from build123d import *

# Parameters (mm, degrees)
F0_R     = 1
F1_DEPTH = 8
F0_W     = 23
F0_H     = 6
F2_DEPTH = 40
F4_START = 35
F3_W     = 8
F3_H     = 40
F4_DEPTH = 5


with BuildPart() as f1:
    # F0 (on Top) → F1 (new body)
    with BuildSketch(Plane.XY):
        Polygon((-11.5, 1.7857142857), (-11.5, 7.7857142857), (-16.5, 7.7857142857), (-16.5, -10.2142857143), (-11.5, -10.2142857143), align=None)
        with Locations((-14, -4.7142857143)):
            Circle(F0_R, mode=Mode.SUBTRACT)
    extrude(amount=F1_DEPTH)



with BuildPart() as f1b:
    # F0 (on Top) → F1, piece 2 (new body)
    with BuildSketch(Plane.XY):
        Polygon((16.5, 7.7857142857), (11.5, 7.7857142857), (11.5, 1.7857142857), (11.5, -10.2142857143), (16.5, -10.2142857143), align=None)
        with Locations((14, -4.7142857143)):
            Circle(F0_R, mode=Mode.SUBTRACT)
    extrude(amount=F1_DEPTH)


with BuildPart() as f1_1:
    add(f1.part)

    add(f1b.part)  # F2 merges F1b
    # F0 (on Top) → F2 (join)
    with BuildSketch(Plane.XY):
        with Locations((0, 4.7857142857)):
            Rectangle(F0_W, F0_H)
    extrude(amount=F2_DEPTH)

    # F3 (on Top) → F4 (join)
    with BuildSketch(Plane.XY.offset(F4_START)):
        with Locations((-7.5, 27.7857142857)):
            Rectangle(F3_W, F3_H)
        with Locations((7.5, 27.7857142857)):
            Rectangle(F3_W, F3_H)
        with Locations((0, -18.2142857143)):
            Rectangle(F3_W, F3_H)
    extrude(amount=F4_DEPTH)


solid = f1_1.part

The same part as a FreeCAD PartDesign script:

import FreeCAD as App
import Part
import Sketcher


def add_polygon(sketch, points):
    """Adds a closed chain of lines whose ends are joined by coincident constraints."""
    first, n = sketch.GeometryCount, len(points)
    for a, b in zip(points, points[1:] + points[:1]):
        sketch.addGeometry(Part.LineSegment(App.Vector(*a, 0), App.Vector(*b, 0)), False)
    for i in range(n):
        sketch.addConstraint(Sketcher.Constraint("Coincident", first + i, 2, first + (i + 1) % n, 1))

doc = App.newDocument("Part")
body = doc.addObject("PartDesign::Body", "Body")

# Sketch on XY plane
sketch1 = doc.addObject("Sketcher::SketchObject", "Sketch")
body.addObject(sketch1)
sketch1.AttachmentSupport = (doc.XY_Plane, [""])
sketch1.MapMode = "FlatFace"
add_polygon(sketch1, [(-11.5, 7.785714), (-16.5, 7.785714), (-16.5, -10.214286), (-11.5, -10.214286)])  # lines 0-3
sketch1.addGeometry(Part.Circle(App.Vector(-14, -4.714286, 0), App.Vector(0, 0, 1), 1), False)  # 4
sketch1.addConstraint([
    Sketcher.Constraint("Horizontal", 0),
    Sketcher.Constraint("Vertical", 1),
    Sketcher.Constraint("Horizontal", 2),
    Sketcher.Constraint("Vertical", 3),
    Sketcher.Constraint("Diameter", 4, 2.0),
    Sketcher.Constraint("DistanceX", 0, 2, 0, 1, 5.0),
    Sketcher.Constraint("DistanceY", 1, 2, 1, 1, 18.0),
    Sketcher.Constraint("DistanceX", 4, 3, -1, 1, 14.0),
    Sketcher.Constraint("DistanceX", 0, 2, -1, 1, 16.5),
    Sketcher.Constraint("DistanceY", 4, 3, 0, 2, 12.5),
    Sketcher.Constraint("DistanceY", 4, 3, -1, 1, 4.714286),
])
pad1 = doc.addObject("PartDesign::Pad", "Pad")
body.addObject(pad1)
pad1.Profile = sketch1
pad1.Length = 8
body2 = doc.addObject("PartDesign::Body", "Body001")

# Sketch on XY plane
sketch2 = doc.addObject("Sketcher::SketchObject", "Sketch001")
body2.addObject(sketch2)
sketch2.AttachmentSupport = (doc.getObject("XY_Plane001"), [""])
sketch2.MapMode = "FlatFace"
add_polygon(sketch2, [(16.5, 7.785714), (11.5, 7.785714), (11.5, -10.214286), (16.5, -10.214286)])  # lines 0-3
sketch2.addGeometry(Part.Circle(App.Vector(14, -4.714286, 0), App.Vector(0, 0, 1), 1), False)  # 4
sketch2.addConstraint([
    Sketcher.Constraint("Horizontal", 0),
    Sketcher.Constraint("Vertical", 1),
    Sketcher.Constraint("Horizontal", 2),
    Sketcher.Constraint("Vertical", 3),
    Sketcher.Constraint("Diameter", 4, 2.0),
    Sketcher.Constraint("DistanceX", 0, 2, 0, 1, 5.0),
    Sketcher.Constraint("DistanceY", 1, 2, 1, 1, 18.0),
    Sketcher.Constraint("DistanceX", -1, 1, 4, 3, 14.0),
    Sketcher.Constraint("DistanceX", -1, 1, 0, 2, 11.5),
    Sketcher.Constraint("DistanceY", 4, 3, 0, 2, 12.5),
    Sketcher.Constraint("DistanceY", 4, 3, -1, 1, 4.714286),
])
pad2 = doc.addObject("PartDesign::Pad", "Pad001")
body2.addObject(pad2)
pad2.Profile = sketch2
pad2.Length = 8
body.AllowCompound = True
doc.recompute()

boolean = doc.addObject("PartDesign::Boolean", "Boolean")
body.addObject(boolean)
boolean.Type = "Fuse"
boolean.addObjects([body2])

# Sketch on XY plane
sketch3 = doc.addObject("Sketcher::SketchObject", "Sketch002")
body.addObject(sketch3)
sketch3.AttachmentSupport = (doc.XY_Plane, [""])
sketch3.MapMode = "FlatFace"
add_polygon(sketch3, [(-11.5, 7.785714), (-11.5, 1.785714), (11.5, 1.785714), (11.5, 7.785714)])  # lines 0-3
sketch3.addConstraint([
    Sketcher.Constraint("Vertical", 0),
    Sketcher.Constraint("Horizontal", 1),
    Sketcher.Constraint("Vertical", 2),
    Sketcher.Constraint("Horizontal", 3),
    Sketcher.Constraint("DistanceX", 1, 1, 1, 2, 23.0),
    Sketcher.Constraint("DistanceY", 0, 2, 0, 1, 6.0),
    Sketcher.Constraint("DistanceX", 0, 2, -1, 1, 11.5),
    Sketcher.Constraint("DistanceY", -1, 1, 0, 2, 1.785714),
])
pad3 = doc.addObject("PartDesign::Pad", "Pad002")
body.addObject(pad3)
pad3.Profile = sketch3
pad3.Length = 40

# Sketch on XY plane
sketch4 = doc.addObject("Sketcher::SketchObject", "Sketch003")
body.addObject(sketch4)
sketch4.AttachmentSupport = (doc.XY_Plane, [""])
sketch4.MapMode = "FlatFace"
sketch4.AttachmentOffset = App.Placement(App.Vector(0, 0, 35), App.Rotation())
add_polygon(sketch4, [(-11.5, 47.785714), (-11.5, 7.785714), (-3.5, 7.785714), (-3.5, 47.785714)])  # lines 0-3
add_polygon(sketch4, [(3.5, 47.785714), (3.5, 7.785714), (11.5, 7.785714), (11.5, 47.785714)])  # lines 4-7
add_polygon(sketch4, [(-4, 1.785714), (-4, -38.214286), (4, -38.214286), (4, 1.785714)])  # lines 8-11
sketch4.addConstraint([
    Sketcher.Constraint("Vertical", 0),
    Sketcher.Constraint("Horizontal", 1),
    Sketcher.Constraint("Vertical", 2),
    Sketcher.Constraint("Horizontal", 3),
    Sketcher.Constraint("Vertical", 4),
    Sketcher.Constraint("Horizontal", 5),
    Sketcher.Constraint("Vertical", 6),
    Sketcher.Constraint("Horizontal", 7),
    Sketcher.Constraint("Vertical", 8),
    Sketcher.Constraint("Horizontal", 9),
    Sketcher.Constraint("Vertical", 10),
    Sketcher.Constraint("Horizontal", 11),
    Sketcher.Constraint("Symmetric", 1, 2, 4, 2, -2),
    Sketcher.Constraint("Symmetric", 3, 2, 6, 2, -2),
    Sketcher.Constraint("Equal", 7, 9),
    Sketcher.Constraint("Equal", 6, 8),
    Sketcher.Constraint("DistanceX", 1, 1, 1, 2, 8.0),
    Sketcher.Constraint("DistanceY", 0, 2, 0, 1, 40.0),
    Sketcher.Constraint("DistanceX", 8, 2, -1, 1, 4.0),
    Sketcher.Constraint("DistanceX", 1, 2, 4, 2, 7.0),
    Sketcher.Constraint("DistanceY", 8, 2, 1, 2, 46.0),
    Sketcher.Constraint("DistanceY", -1, 1, 0, 2, 7.785714),
])
pad4 = doc.addObject("PartDesign::Pad", "Pad003")
body.addObject(pad4)
pad4.Profile = sketch4
pad4.Length = 5

doc.recompute()
